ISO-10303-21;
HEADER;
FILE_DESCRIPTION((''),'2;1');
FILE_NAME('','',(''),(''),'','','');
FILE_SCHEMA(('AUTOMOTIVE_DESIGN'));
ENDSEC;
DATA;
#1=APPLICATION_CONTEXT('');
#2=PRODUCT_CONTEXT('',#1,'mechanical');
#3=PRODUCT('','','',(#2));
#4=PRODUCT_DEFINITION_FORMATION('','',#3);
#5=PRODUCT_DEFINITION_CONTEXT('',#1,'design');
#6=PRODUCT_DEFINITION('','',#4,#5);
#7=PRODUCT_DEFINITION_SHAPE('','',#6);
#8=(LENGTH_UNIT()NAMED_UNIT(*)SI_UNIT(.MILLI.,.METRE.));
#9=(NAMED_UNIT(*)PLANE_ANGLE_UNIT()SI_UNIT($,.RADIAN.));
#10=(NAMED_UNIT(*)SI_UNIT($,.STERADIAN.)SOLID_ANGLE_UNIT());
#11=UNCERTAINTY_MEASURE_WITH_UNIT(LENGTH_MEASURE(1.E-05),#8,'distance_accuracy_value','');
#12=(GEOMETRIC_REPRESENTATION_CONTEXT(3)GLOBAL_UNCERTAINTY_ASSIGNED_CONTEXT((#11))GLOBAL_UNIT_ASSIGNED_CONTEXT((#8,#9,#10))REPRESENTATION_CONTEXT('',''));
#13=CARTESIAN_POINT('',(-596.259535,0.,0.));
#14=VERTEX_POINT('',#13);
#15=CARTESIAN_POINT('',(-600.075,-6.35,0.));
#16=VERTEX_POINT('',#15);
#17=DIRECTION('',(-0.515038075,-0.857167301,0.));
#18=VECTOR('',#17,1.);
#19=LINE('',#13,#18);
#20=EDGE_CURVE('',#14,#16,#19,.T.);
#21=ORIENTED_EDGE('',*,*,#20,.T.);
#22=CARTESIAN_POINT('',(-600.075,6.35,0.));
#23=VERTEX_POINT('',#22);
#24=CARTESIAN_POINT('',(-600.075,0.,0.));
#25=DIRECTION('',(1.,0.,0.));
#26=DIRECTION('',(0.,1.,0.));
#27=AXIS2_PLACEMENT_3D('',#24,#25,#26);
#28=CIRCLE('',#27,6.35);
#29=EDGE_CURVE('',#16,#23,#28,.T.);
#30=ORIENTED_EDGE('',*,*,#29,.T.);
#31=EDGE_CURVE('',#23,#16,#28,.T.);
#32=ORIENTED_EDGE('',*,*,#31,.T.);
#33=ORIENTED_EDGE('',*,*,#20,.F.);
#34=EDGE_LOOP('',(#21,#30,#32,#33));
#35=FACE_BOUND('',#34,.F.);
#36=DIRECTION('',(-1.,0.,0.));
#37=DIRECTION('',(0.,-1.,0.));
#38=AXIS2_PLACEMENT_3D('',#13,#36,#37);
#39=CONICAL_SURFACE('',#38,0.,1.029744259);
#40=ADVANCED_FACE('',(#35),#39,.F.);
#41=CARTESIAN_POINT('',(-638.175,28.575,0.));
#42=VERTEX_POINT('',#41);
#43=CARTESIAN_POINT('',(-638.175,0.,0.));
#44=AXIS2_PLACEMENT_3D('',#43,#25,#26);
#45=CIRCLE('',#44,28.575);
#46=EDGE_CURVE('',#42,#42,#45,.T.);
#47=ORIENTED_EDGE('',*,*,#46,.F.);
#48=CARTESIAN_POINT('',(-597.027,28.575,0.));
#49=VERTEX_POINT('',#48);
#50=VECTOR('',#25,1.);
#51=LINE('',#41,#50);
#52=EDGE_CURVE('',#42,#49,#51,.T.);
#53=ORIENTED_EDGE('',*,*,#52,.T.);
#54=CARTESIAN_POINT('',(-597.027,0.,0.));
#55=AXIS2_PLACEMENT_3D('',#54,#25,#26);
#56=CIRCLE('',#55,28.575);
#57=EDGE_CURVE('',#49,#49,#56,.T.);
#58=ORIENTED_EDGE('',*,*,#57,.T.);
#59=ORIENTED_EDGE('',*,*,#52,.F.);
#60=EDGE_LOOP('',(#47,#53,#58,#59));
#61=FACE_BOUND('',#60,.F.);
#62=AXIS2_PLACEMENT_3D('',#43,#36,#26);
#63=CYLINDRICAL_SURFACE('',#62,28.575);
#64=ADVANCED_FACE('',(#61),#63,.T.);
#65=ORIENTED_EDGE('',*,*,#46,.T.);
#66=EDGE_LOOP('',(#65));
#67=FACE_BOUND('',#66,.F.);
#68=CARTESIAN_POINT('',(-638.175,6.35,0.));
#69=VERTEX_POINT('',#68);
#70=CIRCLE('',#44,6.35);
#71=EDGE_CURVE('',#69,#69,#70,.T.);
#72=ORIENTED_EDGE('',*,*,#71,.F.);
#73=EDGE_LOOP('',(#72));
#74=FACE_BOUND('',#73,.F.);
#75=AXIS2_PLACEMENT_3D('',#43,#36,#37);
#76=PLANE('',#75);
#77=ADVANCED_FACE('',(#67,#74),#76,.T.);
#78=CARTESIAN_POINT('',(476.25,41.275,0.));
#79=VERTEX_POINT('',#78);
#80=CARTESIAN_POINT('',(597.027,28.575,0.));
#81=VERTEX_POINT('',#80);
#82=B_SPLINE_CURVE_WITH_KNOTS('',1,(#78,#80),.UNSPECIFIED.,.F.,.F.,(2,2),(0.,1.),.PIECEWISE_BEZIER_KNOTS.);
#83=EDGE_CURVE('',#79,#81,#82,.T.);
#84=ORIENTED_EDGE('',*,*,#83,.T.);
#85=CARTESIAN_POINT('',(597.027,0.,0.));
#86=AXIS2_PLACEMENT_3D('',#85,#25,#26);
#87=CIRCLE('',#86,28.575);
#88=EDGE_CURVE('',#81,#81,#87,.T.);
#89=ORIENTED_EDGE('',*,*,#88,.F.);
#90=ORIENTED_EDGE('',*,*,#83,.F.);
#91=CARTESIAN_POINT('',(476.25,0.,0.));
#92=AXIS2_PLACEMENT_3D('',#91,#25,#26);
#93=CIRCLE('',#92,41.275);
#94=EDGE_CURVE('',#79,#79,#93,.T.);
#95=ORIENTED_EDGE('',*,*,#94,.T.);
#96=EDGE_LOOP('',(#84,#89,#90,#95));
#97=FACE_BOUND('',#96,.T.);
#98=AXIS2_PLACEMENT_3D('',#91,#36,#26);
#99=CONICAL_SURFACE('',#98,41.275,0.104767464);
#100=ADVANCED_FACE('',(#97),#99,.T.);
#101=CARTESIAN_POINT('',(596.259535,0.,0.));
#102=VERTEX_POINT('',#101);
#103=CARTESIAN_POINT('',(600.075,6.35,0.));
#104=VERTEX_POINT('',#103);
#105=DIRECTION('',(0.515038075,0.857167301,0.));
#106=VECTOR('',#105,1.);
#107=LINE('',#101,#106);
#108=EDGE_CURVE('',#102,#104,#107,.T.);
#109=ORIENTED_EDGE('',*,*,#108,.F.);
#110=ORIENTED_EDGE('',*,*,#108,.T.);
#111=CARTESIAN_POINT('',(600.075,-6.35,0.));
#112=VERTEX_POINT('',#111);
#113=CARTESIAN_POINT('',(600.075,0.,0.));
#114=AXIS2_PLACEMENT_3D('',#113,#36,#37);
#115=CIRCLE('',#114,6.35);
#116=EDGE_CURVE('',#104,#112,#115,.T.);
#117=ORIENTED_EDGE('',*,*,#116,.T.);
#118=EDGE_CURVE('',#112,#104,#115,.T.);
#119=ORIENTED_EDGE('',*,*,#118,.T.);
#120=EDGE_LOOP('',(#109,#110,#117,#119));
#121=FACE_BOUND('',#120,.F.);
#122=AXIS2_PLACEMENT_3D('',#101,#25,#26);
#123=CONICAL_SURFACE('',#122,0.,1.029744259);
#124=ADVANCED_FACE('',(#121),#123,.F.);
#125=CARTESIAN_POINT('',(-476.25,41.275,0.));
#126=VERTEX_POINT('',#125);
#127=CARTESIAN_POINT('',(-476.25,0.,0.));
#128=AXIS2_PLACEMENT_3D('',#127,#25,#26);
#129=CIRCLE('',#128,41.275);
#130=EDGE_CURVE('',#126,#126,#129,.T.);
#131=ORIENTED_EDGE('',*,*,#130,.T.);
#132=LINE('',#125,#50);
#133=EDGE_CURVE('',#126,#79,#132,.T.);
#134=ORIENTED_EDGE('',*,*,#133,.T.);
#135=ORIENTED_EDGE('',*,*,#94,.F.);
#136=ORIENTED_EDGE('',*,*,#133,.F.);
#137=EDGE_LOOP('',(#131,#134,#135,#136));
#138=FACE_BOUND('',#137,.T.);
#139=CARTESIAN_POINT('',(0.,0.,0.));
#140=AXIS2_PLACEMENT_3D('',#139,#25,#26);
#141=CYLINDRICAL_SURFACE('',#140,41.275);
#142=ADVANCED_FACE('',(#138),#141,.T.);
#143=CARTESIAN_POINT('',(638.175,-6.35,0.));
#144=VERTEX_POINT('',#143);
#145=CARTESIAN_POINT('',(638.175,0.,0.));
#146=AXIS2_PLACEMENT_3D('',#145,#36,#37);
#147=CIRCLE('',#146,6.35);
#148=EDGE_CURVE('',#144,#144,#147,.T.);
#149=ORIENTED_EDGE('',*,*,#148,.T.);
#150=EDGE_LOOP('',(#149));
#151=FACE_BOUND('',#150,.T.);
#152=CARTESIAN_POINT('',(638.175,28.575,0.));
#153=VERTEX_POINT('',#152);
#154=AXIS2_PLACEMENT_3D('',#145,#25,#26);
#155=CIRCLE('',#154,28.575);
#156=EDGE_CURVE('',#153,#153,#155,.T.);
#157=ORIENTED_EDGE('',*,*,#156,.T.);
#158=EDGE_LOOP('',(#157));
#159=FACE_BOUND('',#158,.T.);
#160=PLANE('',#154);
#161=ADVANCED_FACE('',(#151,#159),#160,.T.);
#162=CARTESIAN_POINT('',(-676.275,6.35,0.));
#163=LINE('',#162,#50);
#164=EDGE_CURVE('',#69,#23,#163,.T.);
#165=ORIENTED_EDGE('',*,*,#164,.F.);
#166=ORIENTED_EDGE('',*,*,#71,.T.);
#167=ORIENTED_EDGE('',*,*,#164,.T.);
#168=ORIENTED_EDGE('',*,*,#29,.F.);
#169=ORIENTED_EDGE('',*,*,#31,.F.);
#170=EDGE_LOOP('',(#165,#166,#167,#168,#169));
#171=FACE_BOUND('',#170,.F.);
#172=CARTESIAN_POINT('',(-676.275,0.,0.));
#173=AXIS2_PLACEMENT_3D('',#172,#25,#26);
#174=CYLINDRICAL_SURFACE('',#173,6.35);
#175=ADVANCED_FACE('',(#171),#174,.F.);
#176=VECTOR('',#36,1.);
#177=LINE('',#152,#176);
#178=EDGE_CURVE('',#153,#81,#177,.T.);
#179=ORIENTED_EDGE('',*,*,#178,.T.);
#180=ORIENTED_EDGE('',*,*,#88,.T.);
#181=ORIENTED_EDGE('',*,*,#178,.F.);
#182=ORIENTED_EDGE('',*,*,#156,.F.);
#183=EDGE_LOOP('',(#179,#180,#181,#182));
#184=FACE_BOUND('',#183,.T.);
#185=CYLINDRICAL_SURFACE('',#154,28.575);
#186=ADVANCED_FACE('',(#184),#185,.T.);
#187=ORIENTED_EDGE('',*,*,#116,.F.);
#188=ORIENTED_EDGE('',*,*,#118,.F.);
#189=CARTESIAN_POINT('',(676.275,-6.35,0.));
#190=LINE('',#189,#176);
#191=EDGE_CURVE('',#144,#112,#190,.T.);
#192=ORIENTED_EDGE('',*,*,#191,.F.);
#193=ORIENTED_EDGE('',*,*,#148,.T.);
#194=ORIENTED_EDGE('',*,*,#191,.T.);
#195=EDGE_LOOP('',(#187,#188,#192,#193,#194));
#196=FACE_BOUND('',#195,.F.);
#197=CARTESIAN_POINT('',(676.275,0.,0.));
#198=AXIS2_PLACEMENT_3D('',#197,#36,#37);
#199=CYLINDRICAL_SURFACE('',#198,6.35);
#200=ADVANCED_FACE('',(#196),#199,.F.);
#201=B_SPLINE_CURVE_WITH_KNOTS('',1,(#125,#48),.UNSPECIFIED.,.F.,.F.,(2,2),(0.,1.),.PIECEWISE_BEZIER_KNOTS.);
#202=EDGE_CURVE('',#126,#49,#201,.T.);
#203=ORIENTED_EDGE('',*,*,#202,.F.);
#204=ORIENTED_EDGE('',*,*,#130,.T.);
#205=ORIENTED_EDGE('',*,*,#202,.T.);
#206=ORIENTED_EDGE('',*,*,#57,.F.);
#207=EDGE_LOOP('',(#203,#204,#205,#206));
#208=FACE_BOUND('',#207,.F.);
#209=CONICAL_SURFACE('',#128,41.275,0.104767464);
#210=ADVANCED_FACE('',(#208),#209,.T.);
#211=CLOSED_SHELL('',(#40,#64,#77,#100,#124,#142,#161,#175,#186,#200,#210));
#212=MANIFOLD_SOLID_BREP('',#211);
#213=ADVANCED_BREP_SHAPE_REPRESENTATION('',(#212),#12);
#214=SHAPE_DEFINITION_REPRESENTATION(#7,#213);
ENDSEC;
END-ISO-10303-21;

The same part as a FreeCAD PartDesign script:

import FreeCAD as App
import Part
import Sketcher
from FreeCAD import Vector
Q = App.Units.Quantity

doc = App.newDocument("Part")
body = doc.addObject("PartDesign::Body", "Body")

# Sketch on YZ plane
sketch1 = doc.addObject("Sketcher::SketchObject", "Sketch")
body.addObject(sketch1)
sketch1.AttachmentSupport = (doc.YZ_Plane, [""])
sketch1.MapMode = "FlatFace"
sketch1.addGeometry(Part.Circle(Vector(0, 0, 0), Vector(0, 0, 1), 41), False)
sketch1.addConstraint(Sketcher.Constraint("Coincident", 0, 3, -1, 1))
sketch1.addConstraint(Sketcher.Constraint("Diameter", 0, Q("3.25 in")))
pad1 = doc.addObject("PartDesign::Pad", "Pad")
body.addObject(pad1)
pad1.Profile = sketch1
pad1.Length = Q("37.5 in")
pad1.Midplane = True
body2 = doc.addObject("PartDesign::Body", "Body001")

# Sketch on YZ plane
sketch2 = doc.addObject("Sketcher::SketchObject", "Sketch001")
body2.addObject(sketch2)
sketch2.AttachmentSupport = (doc.getObject("YZ_Plane001"), [""])
sketch2.MapMode = "FlatFace"
sketch2.AttachmentOffset = App.Placement(Vector(0, 0, 25.125 * 25.4), App.Rotation())
sketch2.addGeometry(Part.Circle(Vector(0, 0, 0), Vector(0, 0, 1), 29), False)
sketch2.addConstraint(Sketcher.Constraint("Coincident", 0, 3, -1, 1))
sketch2.addConstraint(Sketcher.Constraint("Diameter", 0, Q("2.25 in")))
pad2 = doc.addObject("PartDesign::Pad", "Pad001")
body2.addObject(pad2)
pad2.Profile = sketch2
pad2.Length = Q("1.62 in")
pad2.Reversed = True
body.AllowCompound = True
doc.recompute()

boolean = doc.addObject("PartDesign::Boolean", "Boolean")
body.addObject(boolean)
boolean.Type = "Fuse"
boolean.addObjects([body2])

# Sketch on YZ plane
sketch3 = doc.addObject("Sketcher::SketchObject", "Sketch002")
body.addObject(sketch3)
sketch3.AttachmentSupport = (doc.YZ_Plane, [""])
sketch3.MapMode = "FlatFace"
sketch3.AttachmentOffset = App.Placement(Vector(0, 0, 18.75 * 25.4), App.Rotation())
sketch3.addGeometry(Part.Circle(Vector(0, 0, 0), Vector(0, 0, 1), 41), False)
sketch3.addConstraint(Sketcher.Constraint("Coincident", 0, 3, -1, 1))
sketch3.addConstraint(Sketcher.Constraint("Diameter", 0, Q("3.25 in")))

# Sketch on YZ plane
sketch4 = doc.addObject("Sketcher::SketchObject", "Sketch003")
body.addObject(sketch4)
sketch4.AttachmentSupport = (doc.YZ_Plane, [""])
sketch4.MapMode = "FlatFace"
sketch4.AttachmentOffset = App.Placement(Vector(0, 0, 23.505 * 25.4), App.Rotation())
sketch4.addGeometry(Part.Circle(Vector(0, 0, 0), Vector(0, 0, 1), 29), False)
sketch4.addConstraint(Sketcher.Constraint("Coincident", 0, 3, -1, 1))
sketch4.addConstraint(Sketcher.Constraint("Diameter", 0, Q("2.25 in")))

additiveloft = doc.addObject("PartDesign::AdditiveLoft", "AdditiveLoft")
body.addObject(additiveloft)
additiveloft.Profile = sketch3
additiveloft.Sections = [sketch4]
body3 = doc.addObject("PartDesign::Body", "Body002")
doc.recompute()

body3.BaseFeature = body
doc.recompute()

mirroring = doc.addObject("Part::Mirroring", "Mirroring")
mirroring.Source = body
mirroring.Base = Vector(0, 0, 0)
mirroring.Normal = Vector(1, 0, 0)
body4 = doc.addObject("PartDesign::Body", "Body003")
body4.BaseFeature = mirroring
boolean2 = doc.addObject("PartDesign::Boolean", "Boolean001")
body3.addObject(boolean2)
boolean2.Type = "Fuse"
boolean2.addObjects([body4])
doc.recompute()

# Sketch on YZ plane
sketch5 = doc.addObject("Sketcher::SketchObject", "Sketch004")
body3.addObject(sketch5)
sketch5.AttachmentSupport = (doc.getObject("YZ_Plane002"), [""])
sketch5.MapMode = "FlatFace"
sketch5.AttachmentOffset = App.Placement(Vector(0, 0, -25.125 * 25.4), App.Rotation())
sketch5.addGeometry(Part.Circle(Vector(0, 0, 0), Vector(0, 0, 1), 6), False)
sketch5.addConstraint(Sketcher.Constraint("Coincident", 0, 3, -1, 1))
sketch5.addConstraint(Sketcher.Constraint("Diameter", 0, Q("0.5 in")))
doc.recompute()
hole = doc.addObject("PartDesign::Hole", "Hole")
body3.addObject(hole)
hole.Profile = sketch5
hole.ThreadType = "None"
hole.Diameter = Q("0.5 in")
hole.DepthType = "Dimension"
hole.Depth = Q("1.5 in")
hole.DrillPoint = "Angled"
hole.DrillPointAngle = 118
hole.Reversed = True

# Sketch on YZ plane
sketch6 = doc.addObject("Sketcher::SketchObject", "Sketch005")
body3.addObject(sketch6)
sketch6.AttachmentSupport = (doc.getObject("YZ_Plane002"), [""])
sketch6.MapMode = "FlatFace"
sketch6.AttachmentOffset = App.Placement(Vector(0, 0, 25.125 * 25.4), App.Rotation())
sketch6.addGeometry(Part.Circle(Vector(0, 0, 0), Vector(0, 0, 1), 6), False)
sketch6.addConstraint(Sketcher.Constraint("Coincident", 0, 3, -1, 1))
sketch6.addConstraint(Sketcher.Constraint("Diameter", 0, Q("0.5 in")))
doc.recompute()
hole2 = doc.addObject("PartDesign::Hole", "Hole001")
body3.addObject(hole2)
hole2.Profile = sketch6
hole2.ThreadType = "None"
hole2.Diameter = Q("0.5 in")
hole2.DepthType = "Dimension"
hole2.Depth = Q("1.5 in")
hole2.DrillPoint = "Angled"
hole2.DrillPointAngle = 118
mirroring.Visibility = False

doc.recompute()
